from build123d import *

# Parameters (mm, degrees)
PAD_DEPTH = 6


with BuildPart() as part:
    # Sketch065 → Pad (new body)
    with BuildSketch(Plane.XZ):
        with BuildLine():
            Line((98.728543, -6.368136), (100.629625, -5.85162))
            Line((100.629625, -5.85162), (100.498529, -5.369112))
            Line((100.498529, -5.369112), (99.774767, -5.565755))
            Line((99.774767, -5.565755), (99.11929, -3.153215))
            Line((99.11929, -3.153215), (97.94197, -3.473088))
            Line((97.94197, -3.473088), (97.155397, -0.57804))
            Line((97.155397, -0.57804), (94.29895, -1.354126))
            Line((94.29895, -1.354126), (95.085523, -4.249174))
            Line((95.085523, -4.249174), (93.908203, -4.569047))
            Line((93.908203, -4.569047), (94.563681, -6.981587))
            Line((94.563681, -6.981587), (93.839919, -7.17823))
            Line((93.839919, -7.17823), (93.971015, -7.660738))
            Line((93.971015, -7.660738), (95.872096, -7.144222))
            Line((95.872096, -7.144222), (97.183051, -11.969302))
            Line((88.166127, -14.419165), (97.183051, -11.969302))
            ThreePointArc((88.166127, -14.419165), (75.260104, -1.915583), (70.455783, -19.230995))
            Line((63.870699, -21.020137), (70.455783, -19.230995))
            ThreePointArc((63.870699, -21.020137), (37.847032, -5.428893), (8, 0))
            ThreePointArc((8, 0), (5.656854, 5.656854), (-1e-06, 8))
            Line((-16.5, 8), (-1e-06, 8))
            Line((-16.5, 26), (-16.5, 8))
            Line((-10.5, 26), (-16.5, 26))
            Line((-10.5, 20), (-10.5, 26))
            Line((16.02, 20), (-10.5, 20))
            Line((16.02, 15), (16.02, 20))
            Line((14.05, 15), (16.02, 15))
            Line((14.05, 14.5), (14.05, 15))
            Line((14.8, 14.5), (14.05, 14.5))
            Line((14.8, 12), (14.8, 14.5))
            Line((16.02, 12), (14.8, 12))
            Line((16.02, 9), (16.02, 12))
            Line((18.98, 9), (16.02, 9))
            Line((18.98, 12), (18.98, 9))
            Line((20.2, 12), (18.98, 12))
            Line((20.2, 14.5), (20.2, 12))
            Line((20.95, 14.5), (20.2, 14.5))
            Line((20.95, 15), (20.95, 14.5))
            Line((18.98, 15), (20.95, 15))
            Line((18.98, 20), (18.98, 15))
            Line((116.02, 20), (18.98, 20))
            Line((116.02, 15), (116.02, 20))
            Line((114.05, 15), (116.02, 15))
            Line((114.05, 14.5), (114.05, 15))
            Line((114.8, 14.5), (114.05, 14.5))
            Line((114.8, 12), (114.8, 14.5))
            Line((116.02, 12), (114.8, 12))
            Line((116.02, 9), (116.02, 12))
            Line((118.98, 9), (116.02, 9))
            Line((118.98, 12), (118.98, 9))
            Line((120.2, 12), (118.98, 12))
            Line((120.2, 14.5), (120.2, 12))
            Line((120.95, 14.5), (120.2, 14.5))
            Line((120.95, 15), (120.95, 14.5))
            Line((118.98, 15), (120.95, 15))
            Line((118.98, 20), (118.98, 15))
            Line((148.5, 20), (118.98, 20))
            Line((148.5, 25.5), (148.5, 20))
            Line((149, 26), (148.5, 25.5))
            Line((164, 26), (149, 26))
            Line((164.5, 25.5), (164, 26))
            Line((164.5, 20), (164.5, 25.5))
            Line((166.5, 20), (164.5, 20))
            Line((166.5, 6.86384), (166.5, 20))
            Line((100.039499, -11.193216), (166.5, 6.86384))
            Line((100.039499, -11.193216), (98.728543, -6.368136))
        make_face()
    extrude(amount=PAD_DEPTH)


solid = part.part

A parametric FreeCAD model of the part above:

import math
import FreeCAD as App
import Part
import Sketcher

doc = App.newDocument("Part")
body = doc.addObject("PartDesign::Body", "Body")

# Sketch on XZ plane
sketch1 = doc.addObject("Sketcher::SketchObject", "Sketch")
body.addObject(sketch1)
sketch1.AttachmentSupport = (doc.XZ_Plane, [""])
sketch1.MapMode = "FlatFace"
sketch1.addGeometry([
    Part.LineSegment(App.Vector(100.6, -5.9, 0), App.Vector(98.7, -6.4, 0)),  # 0
    Part.LineSegment(App.Vector(98.7, -6.4, 0), App.Vector(100, -11.2, 0)),  # 1
    Part.LineSegment(App.Vector(100, -11.2, 0), App.Vector(166.5, 6.9, 0)),  # 2
    Part.LineSegment(App.Vector(166.5, 6.9, 0), App.Vector(166.5, 20, 0)),  # 3
    Part.LineSegment(App.Vector(166.5, 20, 0), App.Vector(164.5, 20, 0)),  # 4
    Part.LineSegment(App.Vector(164.5, 20, 0), App.Vector(164.5, 25.5, 0)),  # 5
    Part.LineSegment(App.Vector(164.5, 25.5, 0), App.Vector(164, 26, 0)),  # 6
    Part.LineSegment(App.Vector(164, 26, 0), App.Vector(149, 26, 0)),  # 7
    Part.LineSegment(App.Vector(149, 26, 0), App.Vector(148.5, 25.5, 0)),  # 8
    Part.LineSegment(App.Vector(148.5, 25.5, 0), App.Vector(148.5, 20, 0)),  # 9
    Part.LineSegment(App.Vector(148.5, 20, 0), App.Vector(119, 20, 0)),  # 10
    Part.LineSegment(App.Vector(119, 20, 0), App.Vector(119, 15, 0)),  # 11
    Part.LineSegment(App.Vector(119, 15, 0), App.Vector(121, 15, 0)),  # 12
    Part.LineSegment(App.Vector(121, 15, 0), App.Vector(121, 14.5, 0)),  # 13
    Part.LineSegment(App.Vector(121, 14.5, 0), App.Vector(120.2, 14.5, 0)),  # 14
    Part.LineSegment(App.Vector(120.2, 14.5, 0), App.Vector(120.2, 12, 0)),  # 15
    Part.LineSegment(App.Vector(120.2, 12, 0), App.Vector(119, 12, 0)),  # 16
    Part.LineSegment(App.Vector(119, 12, 0), App.Vector(119, 9, 0)),  # 17
    Part.LineSegment(App.Vector(119, 9, 0), App.Vector(116, 9, 0)),  # 18
    Part.LineSegment(App.Vector(116, 9, 0), App.Vector(116, 12, 0)),  # 19
    Part.LineSegment(App.Vector(116, 12, 0), App.Vector(114.8, 12, 0)),  # 20
    Part.LineSegment(App.Vector(114.8, 12, 0), App.Vector(114.8, 14.5, 0)),  # 21
    Part.LineSegment(App.Vector(114.8, 14.5, 0), App.Vector(114, 14.5, 0)),  # 22
    Part.LineSegment(App.Vector(114, 14.5, 0), App.Vector(114, 15, 0)),  # 23
    Part.LineSegment(App.Vector(114, 15, 0), App.Vector(116, 15, 0)),  # 24
    Part.LineSegment(App.Vector(116, 15, 0), App.Vector(116, 20, 0)),  # 25
    Part.LineSegment(App.Vector(116, 20, 0), App.Vector(19, 20, 0)),  # 26
    Part.LineSegment(App.Vector(19, 20, 0), App.Vector(19, 15, 0)),  # 27
    Part.LineSegment(App.Vector(19, 15, 0), App.Vector(20.9, 15, 0)),  # 28
    Part.LineSegment(App.Vector(20.9, 15, 0), App.Vector(20.9, 14.5, 0)),  # 29
    Part.LineSegment(App.Vector(20.9, 14.5, 0), App.Vector(20.2, 14.5, 0)),  # 30
    Part.LineSegment(App.Vector(20.2, 14.5, 0), App.Vector(20.2, 12, 0)),  # 31
    Part.LineSegment(App.Vector(20.2, 12, 0), App.Vector(19, 12, 0)),  # 32
    Part.LineSegment(App.Vector(19, 12, 0), App.Vector(19, 9, 0)),  # 33
    Part.LineSegment(App.Vector(19, 9, 0), App.Vector(16, 9, 0)),  # 34
    Part.LineSegment(App.Vector(16, 9, 0), App.Vector(16, 12, 0)),  # 35
    Part.LineSegment(App.Vector(16, 12, 0), App.Vector(14.8, 12, 0)),  # 36
    Part.LineSegment(App.Vector(14.8, 12, 0), App.Vector(14.8, 14.5, 0)),  # 37
    Part.LineSegment(App.Vector(14.8, 14.5, 0), App.Vector(14.1, 14.5, 0)),  # 38
    Part.LineSegment(App.Vector(14.1, 14.5, 0), App.Vector(14.1, 15, 0)),  # 39
    Part.LineSegment(App.Vector(14.1, 15, 0), App.Vector(16, 15, 0)),  # 40
    Part.LineSegment(App.Vector(16, 15, 0), App.Vector(16, 20, 0)),  # 41
    Part.LineSegment(App.Vector(16, 20, 0), App.Vector(-10.5, 20, 0)),  # 42
    Part.LineSegment(App.Vector(-10.5, 20, 0), App.Vector(-10.5, 26, 0)),  # 43
    Part.LineSegment(App.Vector(-10.5, 26, 0), App.Vector(-16.5, 26, 0)),  # 44
    Part.LineSegment(App.Vector(-16.5, 26, 0), App.Vector(-16.5, 8, 0)),  # 45
    Part.LineSegment(App.Vector(-16.5, 8, 0), App.Vector(0, 8, 0)),  # 46
    Part.ArcOfCircle(Part.Circle(App.Vector(0, 0, 0), App.Vector(0, 0, 1), 8), math.radians(0), math.radians(90)),  # 47
    Part.ArcOfCircle(Part.Circle(App.Vector(8, -84.8, 0), App.Vector(0, 0, 1), 84.8), math.radians(49), math.radians(90)),  # 48
    Part.LineSegment(App.Vector(63.9, -21, 0), App.Vector(70.5, -19.2, 0)),  # 49
    Part.ArcOfCircle(Part.Circle(App.Vector(78, -12, 0), App.Vector(0, 0, 1), 10.4), math.radians(-13), math.radians(224)),  # 50
    Part.LineSegment(App.Vector(88.2, -14.4, 0), App.Vector(97.2, -12, 0)),  # 51
    Part.LineSegment(App.Vector(97.2, -12, 0), App.Vector(95.9, -7.1, 0)),  # 52
    Part.LineSegment(App.Vector(95.9, -7.1, 0), App.Vector(94, -7.7, 0)),  # 53
    Part.LineSegment(App.Vector(94, -7.7, 0), App.Vector(93.8, -7.2, 0)),  # 54
    Part.LineSegment(App.Vector(93.8, -7.2, 0), App.Vector(94.6, -7, 0)),  # 55
    Part.LineSegment(App.Vector(94.6, -7, 0), App.Vector(93.9, -4.6, 0)),  # 56
    Part.LineSegment(App.Vector(93.9, -4.6, 0), App.Vector(95.1, -4.2, 0)),  # 57
    Part.LineSegment(App.Vector(95.1, -4.2, 0), App.Vector(94.3, -1.4, 0)),  # 58
    Part.LineSegment(App.Vector(94.3, -1.4, 0), App.Vector(97.2, -0.6, 0)),  # 59
    Part.LineSegment(App.Vector(97.2, -0.6, 0), App.Vector(97.9, -3.5, 0)),  # 60
    Part.LineSegment(App.Vector(97.9, -3.5, 0), App.Vector(99.1, -3.2, 0)),  # 61
    Part.LineSegment(App.Vector(99.1, -3.2, 0), App.Vector(99.8, -5.6, 0)),  # 62
    Part.LineSegment(App.Vector(99.8, -5.6, 0), App.Vector(100.5, -5.4, 0)),  # 63
    Part.LineSegment(App.Vector(100.5, -5.4, 0), App.Vector(100.6, -5.9, 0)),  # 64
], False)
sketch1.addConstraint([
    Sketcher.Constraint("Coincident", 0, 2, 1, 1),
    Sketcher.Constraint("Coincident", 1, 2, 2, 1),
    Sketcher.Constraint("Coincident", 2, 2, 3, 1),
    Sketcher.Constraint("Coincident", 3, 2, 4, 1),
    Sketcher.Constraint("Coincident", 4, 2, 5, 1),
    Sketcher.Constraint("Coincident", 5, 2, 6, 1),
    Sketcher.Constraint("Coincident", 6, 2, 7, 1),
    Sketcher.Constraint("Coincident", 7, 2, 8, 1),
    Sketcher.Constraint("Coincident", 8, 2, 9, 1),
    Sketcher.Constraint("Coincident", 9, 2, 10, 1),
    Sketcher.Constraint("Coincident", 10, 2, 11, 1),
    Sketcher.Constraint("Coincident", 11, 2, 12, 1),
    Sketcher.Constraint("Coincident", 12, 2, 13, 1),
    Sketcher.Constraint("Coincident", 13, 2, 14, 1),
    Sketcher.Constraint("Coincident", 14, 2, 15, 1),
    Sketcher.Constraint("Coincident", 15, 2, 16, 1),
    Sketcher.Constraint("Coincident", 16, 2, 17, 1),
    Sketcher.Constraint("Coincident", 17, 2, 18, 1),
    Sketcher.Constraint("Coincident", 18, 2, 19, 1),
    Sketcher.Constraint("Coincident", 19, 2, 20, 1),
    Sketcher.Constraint("Coincident", 20, 2, 21, 1),
    Sketcher.Constraint("Coincident", 21, 2, 22, 1),
    Sketcher.Constraint("Coincident", 22, 2, 23, 1),
    Sketcher.Constraint("Coincident", 23, 2, 24, 1),
    Sketcher.Constraint("Coincident", 24, 2, 25, 1),
    Sketcher.Constraint("Coincident", 25, 2, 26, 1),
    Sketcher.Constraint("Coincident", 26, 2, 27, 1),
    Sketcher.Constraint("Coincident", 27, 2, 28, 1),
    Sketcher.Constraint("Coincident", 28, 2, 29, 1),
    Sketcher.Constraint("Coincident", 29, 2, 30, 1),
    Sketcher.Constraint("Coincident", 30, 2, 31, 1),
    Sketcher.Constraint("Coincident", 31, 2, 32, 1),
    Sketcher.Constraint("Coincident", 32, 2, 33, 1),
    Sketcher.Constraint("Coincident", 33, 2, 34, 1),
    Sketcher.Constraint("Coincident", 34, 2, 35, 1),
    Sketcher.Constraint("Coincident", 35, 2, 36, 1),
    Sketcher.Constraint("Coincident", 36, 2, 37, 1),
    Sketcher.Constraint("Coincident", 37, 2, 38, 1),
    Sketcher.Constraint("Coincident", 38, 2, 39, 1),
    Sketcher.Constraint("Coincident", 39, 2, 40, 1),
    Sketcher.Constraint("Coincident", 40, 2, 41, 1),
    Sketcher.Constraint("Coincident", 41, 2, 42, 1),
    Sketcher.Constraint("Coincident", 42, 2, 43, 1),
    Sketcher.Constraint("Coincident", 43, 2, 44, 1),
    Sketcher.Constraint("Coincident", 44, 2, 45, 1),
    Sketcher.Constraint("Coincident", 45, 2, 46, 1),
    Sketcher.Constraint("Tangent", 46, 2, 47, 2),
    Sketcher.Constraint("Coincident", 47, 1, 48, 2),
    Sketcher.Constraint("Coincident", 48, 1, 49, 1),
    Sketcher.Constraint("Coincident", 49, 2, 50, 2),
    Sketcher.Constraint("Coincident", 50, 1, 51, 1),
    Sketcher.Constraint("Coincident", 51, 2, 52, 1),
    Sketcher.Constraint("Coincident", 52, 2, 53, 1),
    Sketcher.Constraint("Coincident", 53, 2, 54, 1),
    Sketcher.Constraint("Coincident", 54, 2, 55, 1),
    Sketcher.Constraint("Coincident", 55, 2, 56, 1),
    Sketcher.Constraint("Coincident", 56, 2, 57, 1),
    Sketcher.Constraint("Coincident", 57, 2, 58, 1),
    Sketcher.Constraint("Coincident", 58, 2, 59, 1),
    Sketcher.Constraint("Coincident", 59, 2, 60, 1),
    Sketcher.Constraint("Coincident", 60, 2, 61, 1),
    Sketcher.Constraint("Coincident", 61, 2, 62, 1),
    Sketcher.Constraint("Coincident", 62, 2, 63, 1),
    Sketcher.Constraint("Coincident", 63, 2, 64, 1),
    Sketcher.Constraint("Coincident", 64, 2, 0, 1),
    Sketcher.Constraint("Vertical", 3),
    Sketcher.Constraint("Horizontal", 4),
    Sketcher.Constraint("Vertical", 5),
    Sketcher.Constraint("Horizontal", 7),
    Sketcher.Constraint("Vertical", 9),
    Sketcher.Constraint("Horizontal", 10),
    Sketcher.Constraint("Vertical", 11),
    Sketcher.Constraint("Horizontal", 12),
    Sketcher.Constraint("Vertical", 13),
    Sketcher.Constraint("Horizontal", 14),
    Sketcher.Constraint("Vertical", 15),
    Sketcher.Constraint("Horizontal", 16),
    Sketcher.Constraint("Vertical", 17),
    Sketcher.Constraint("Horizontal", 18),
    Sketcher.Constraint("Vertical", 19),
    Sketcher.Constraint("Horizontal", 20),
    Sketcher.Constraint("Vertical", 21),
    Sketcher.Constraint("Horizontal", 22),
    Sketcher.Constraint("Vertical", 23),
    Sketcher.Constraint("Horizontal", 24),
    Sketcher.Constraint("Vertical", 25),
    Sketcher.Constraint("Horizontal", 26),
    Sketcher.Constraint("Vertical", 27),
    Sketcher.Constraint("Horizontal", 28),
    Sketcher.Constraint("Vertical", 29),
    Sketcher.Constraint("Horizontal", 30),
    Sketcher.Constraint("Vertical", 31),
    Sketcher.Constraint("Horizontal", 32),
    Sketcher.Constraint("Vertical", 33),
    Sketcher.Constraint("Horizontal", 34),
    Sketcher.Constraint("Vertical", 35),
    Sketcher.Constraint("Horizontal", 36),
    Sketcher.Constraint("Vertical", 37),
    Sketcher.Constraint("Horizontal", 38),
    Sketcher.Constraint("Vertical", 39),
    Sketcher.Constraint("Horizontal", 40),
    Sketcher.Constraint("Vertical", 41),
    Sketcher.Constraint("Horizontal", 42),
    Sketcher.Constraint("Vertical", 43),
    Sketcher.Constraint("Horizontal", 44),
    Sketcher.Constraint("Vertical", 45),
    Sketcher.Constraint("Horizontal", 46),
    Sketcher.Constraint("Coincident", 47, 3, -1, 1),
    Sketcher.Constraint("PointOnObject", 47, 1, -1),
    Sketcher.Constraint("Perpendicular", 0, 1),
    Sketcher.Constraint("Perpendicular", 1, 2),
    Sketcher.Constraint("Perpendicular", 6, 8),
    Sketcher.Constraint("Parallel", 2, 49),
    Sketcher.Constraint("Parallel", 49, 51),
    Sketcher.Constraint("Perpendicular", 51, 52),
    Sketcher.Constraint("Perpendicular", 52, 53),
    Sketcher.Constraint("Perpendicular", 53, 54),
    Sketcher.Constraint("Perpendicular", 54, 55),
    Sketcher.Constraint("Perpendicular", 55, 56),
    Sketcher.Constraint("Perpendicular", 56, 57),
    Sketcher.Constraint("Perpendicular", 57, 58),
    Sketcher.Constraint("Perpendicular", 58, 59),
    Sketcher.Constraint("Perpendicular", 59, 60),
    Sketcher.Constraint("Perpendicular", 60, 61),
    Sketcher.Constraint("Perpendicular", 61, 62),
    Sketcher.Constraint("Perpendicular", 62, 63),
    Sketcher.Constraint("Perpendicular", 63, 64),
    Sketcher.Constraint("Horizontal", 5, 2, 8, 2),
    Sketcher.Constraint("Horizontal", 4, 2, 9, 2),
    Sketcher.Constraint("Horizontal", 16, 2, 19, 2),
    Sketcher.Constraint("Horizontal", 14, 2, 21, 2),
    Sketcher.Constraint("Horizontal", 12, 2, 23, 2),
    Sketcher.Constraint("Horizontal", 10, 2, 25, 2),
    Sketcher.Constraint("Horizontal", 24, 2, 27, 2),
    Sketcher.Constraint("Horizontal", 22, 2, 29, 2),
    Sketcher.Constraint("Horizontal", 20, 2, 31, 2),
    Sketcher.Constraint("Horizontal", 18, 2, 33, 2),
    Sketcher.Constraint("Horizontal", 32, 2, 35, 2),
    Sketcher.Constraint("Horizontal", 30, 2, 37, 2),
    Sketcher.Constraint("Horizontal", 28, 2, 39, 2),
    Sketcher.Constraint("Horizontal", 26, 2, 41, 2),
    Sketcher.Constraint("Horizontal", 7, 2, 43, 2),
    Sketcher.Constraint("Vertical", 11, 2, 16, 2),
    Sketcher.Constraint("Vertical", 19, 2, 24, 2),
    Sketcher.Constraint("Vertical", 27, 2, 32, 2),
    Sketcher.Constraint("Vertical", 35, 2, 40, 2),
    Sketcher.Constraint("Vertical", 48, 3, 47, 1),
    Sketcher.Constraint("Equal", 16, 20),
    Sketcher.Constraint("Equal", 14, 22),
    Sketcher.Constraint("Equal", 24, 28),
    Sketcher.Constraint("Equal", 22, 30),
    Sketcher.Constraint("Equal", 18, 34),
    Sketcher.Constraint("Equal", 32, 36),
    Sketcher.Constraint("Equal", 30, 38),
    Sketcher.Constraint("Equal", 44, 43),
    Sketcher.Constraint("Equal", 6, 8),
    Sketcher.Constraint("Equal", 1, 52),
    Sketcher.Constraint("Equal", 0, 53),
    Sketcher.Constraint("Equal", 58, 60),
    Sketcher.Constraint("Equal", 57, 61),
    Sketcher.Constraint("Equal", 56, 62),
    Sketcher.Constraint("Equal", 55, 63),
    Sketcher.Constraint("Equal", 54, 64),
    Sketcher.Constraint("Radius", 47, 8.000001),
    Sketcher.Constraint("DistanceX", 4, 2, 4, 1, 2.0),
    Sketcher.Constraint("DistanceX", 7, 2, 7, 1, 15.0),
    Sketcher.Constraint("DistanceX", 44, 2, 44, 1, 6.0),
    Sketcher.Constraint("DistanceY", 11, 2, 11, 1, 5.0),
    Sketcher.Constraint("DistanceY", 17, 2, 17, 1, 3.0),
    Sketcher.Constraint("DistanceY", 45, 2, 45, 1, 18.0),
    Sketcher.Constraint("Radius", 50, 10.45),
    Sketcher.Constraint("Distance", 1, 5.0),
    Sketcher.Constraint("Distance", 58, 3.0),
    Sketcher.Constraint("DistanceX", 46, 1, 46, 2, 16.499999),
    Sketcher.Constraint("DistanceY", 5, 1, 5, 2, 5.5),
    Sketcher.Constraint("DistanceY", 13, 2, 13, 1, 0.5),
    Sketcher.Constraint("DistanceY", 15, 2, 15, 1, 2.5),
    Sketcher.Constraint("DistanceX", -1, 1, 50, 3, 78.0),
    Sketcher.Constraint("DistanceY", 50, 3, -1, 1, 12.0),
    Sketcher.Constraint("DistanceX", -1, 1, 6, 2, 164.0),
    Sketcher.Constraint("Distance", 54, 0.5),
    Sketcher.Constraint("Distance", 56, 2.5),
    Sketcher.Constraint("DistanceX", 10, 2, 10, 1, 29.52),
    Sketcher.Constraint("DistanceX", 12, 1, 12, 2, 1.97),
    Sketcher.Constraint("DistanceX", 14, 2, 14, 1, 0.75),
    Sketcher.Constraint("DistanceX", 18, 2, 18, 1, 2.96),
    Sketcher.Constraint("DistanceX", 26, 2, 26, 1, 97.04),
    Sketcher.Constraint("Distance", 0, 1.97),
    Sketcher.Constraint("Distance", 55, 0.75),
    Sketcher.Constraint("Distance", 57, 1.22),
    Sketcher.Constraint("Distance", 59, 2.96),
    Sketcher.Constraint("Radius", 48, 84.761133),
    Sketcher.Constraint("DistanceY", 3, 1, 3, 2, 13.13616),
    Sketcher.Constraint("DistanceX", -1, 1, 1, 2, 100.039499),
    Sketcher.Constraint("DistanceX", -1, 1, 48, 1, 63.870699),
    Sketcher.Constraint("Distance", 49, 6.823808),
])
pad1 = doc.addObject("PartDesign::Pad", "Pad")
body.addObject(pad1)
pad1.Profile = sketch1
pad1.Length = 6

doc.recompute()
